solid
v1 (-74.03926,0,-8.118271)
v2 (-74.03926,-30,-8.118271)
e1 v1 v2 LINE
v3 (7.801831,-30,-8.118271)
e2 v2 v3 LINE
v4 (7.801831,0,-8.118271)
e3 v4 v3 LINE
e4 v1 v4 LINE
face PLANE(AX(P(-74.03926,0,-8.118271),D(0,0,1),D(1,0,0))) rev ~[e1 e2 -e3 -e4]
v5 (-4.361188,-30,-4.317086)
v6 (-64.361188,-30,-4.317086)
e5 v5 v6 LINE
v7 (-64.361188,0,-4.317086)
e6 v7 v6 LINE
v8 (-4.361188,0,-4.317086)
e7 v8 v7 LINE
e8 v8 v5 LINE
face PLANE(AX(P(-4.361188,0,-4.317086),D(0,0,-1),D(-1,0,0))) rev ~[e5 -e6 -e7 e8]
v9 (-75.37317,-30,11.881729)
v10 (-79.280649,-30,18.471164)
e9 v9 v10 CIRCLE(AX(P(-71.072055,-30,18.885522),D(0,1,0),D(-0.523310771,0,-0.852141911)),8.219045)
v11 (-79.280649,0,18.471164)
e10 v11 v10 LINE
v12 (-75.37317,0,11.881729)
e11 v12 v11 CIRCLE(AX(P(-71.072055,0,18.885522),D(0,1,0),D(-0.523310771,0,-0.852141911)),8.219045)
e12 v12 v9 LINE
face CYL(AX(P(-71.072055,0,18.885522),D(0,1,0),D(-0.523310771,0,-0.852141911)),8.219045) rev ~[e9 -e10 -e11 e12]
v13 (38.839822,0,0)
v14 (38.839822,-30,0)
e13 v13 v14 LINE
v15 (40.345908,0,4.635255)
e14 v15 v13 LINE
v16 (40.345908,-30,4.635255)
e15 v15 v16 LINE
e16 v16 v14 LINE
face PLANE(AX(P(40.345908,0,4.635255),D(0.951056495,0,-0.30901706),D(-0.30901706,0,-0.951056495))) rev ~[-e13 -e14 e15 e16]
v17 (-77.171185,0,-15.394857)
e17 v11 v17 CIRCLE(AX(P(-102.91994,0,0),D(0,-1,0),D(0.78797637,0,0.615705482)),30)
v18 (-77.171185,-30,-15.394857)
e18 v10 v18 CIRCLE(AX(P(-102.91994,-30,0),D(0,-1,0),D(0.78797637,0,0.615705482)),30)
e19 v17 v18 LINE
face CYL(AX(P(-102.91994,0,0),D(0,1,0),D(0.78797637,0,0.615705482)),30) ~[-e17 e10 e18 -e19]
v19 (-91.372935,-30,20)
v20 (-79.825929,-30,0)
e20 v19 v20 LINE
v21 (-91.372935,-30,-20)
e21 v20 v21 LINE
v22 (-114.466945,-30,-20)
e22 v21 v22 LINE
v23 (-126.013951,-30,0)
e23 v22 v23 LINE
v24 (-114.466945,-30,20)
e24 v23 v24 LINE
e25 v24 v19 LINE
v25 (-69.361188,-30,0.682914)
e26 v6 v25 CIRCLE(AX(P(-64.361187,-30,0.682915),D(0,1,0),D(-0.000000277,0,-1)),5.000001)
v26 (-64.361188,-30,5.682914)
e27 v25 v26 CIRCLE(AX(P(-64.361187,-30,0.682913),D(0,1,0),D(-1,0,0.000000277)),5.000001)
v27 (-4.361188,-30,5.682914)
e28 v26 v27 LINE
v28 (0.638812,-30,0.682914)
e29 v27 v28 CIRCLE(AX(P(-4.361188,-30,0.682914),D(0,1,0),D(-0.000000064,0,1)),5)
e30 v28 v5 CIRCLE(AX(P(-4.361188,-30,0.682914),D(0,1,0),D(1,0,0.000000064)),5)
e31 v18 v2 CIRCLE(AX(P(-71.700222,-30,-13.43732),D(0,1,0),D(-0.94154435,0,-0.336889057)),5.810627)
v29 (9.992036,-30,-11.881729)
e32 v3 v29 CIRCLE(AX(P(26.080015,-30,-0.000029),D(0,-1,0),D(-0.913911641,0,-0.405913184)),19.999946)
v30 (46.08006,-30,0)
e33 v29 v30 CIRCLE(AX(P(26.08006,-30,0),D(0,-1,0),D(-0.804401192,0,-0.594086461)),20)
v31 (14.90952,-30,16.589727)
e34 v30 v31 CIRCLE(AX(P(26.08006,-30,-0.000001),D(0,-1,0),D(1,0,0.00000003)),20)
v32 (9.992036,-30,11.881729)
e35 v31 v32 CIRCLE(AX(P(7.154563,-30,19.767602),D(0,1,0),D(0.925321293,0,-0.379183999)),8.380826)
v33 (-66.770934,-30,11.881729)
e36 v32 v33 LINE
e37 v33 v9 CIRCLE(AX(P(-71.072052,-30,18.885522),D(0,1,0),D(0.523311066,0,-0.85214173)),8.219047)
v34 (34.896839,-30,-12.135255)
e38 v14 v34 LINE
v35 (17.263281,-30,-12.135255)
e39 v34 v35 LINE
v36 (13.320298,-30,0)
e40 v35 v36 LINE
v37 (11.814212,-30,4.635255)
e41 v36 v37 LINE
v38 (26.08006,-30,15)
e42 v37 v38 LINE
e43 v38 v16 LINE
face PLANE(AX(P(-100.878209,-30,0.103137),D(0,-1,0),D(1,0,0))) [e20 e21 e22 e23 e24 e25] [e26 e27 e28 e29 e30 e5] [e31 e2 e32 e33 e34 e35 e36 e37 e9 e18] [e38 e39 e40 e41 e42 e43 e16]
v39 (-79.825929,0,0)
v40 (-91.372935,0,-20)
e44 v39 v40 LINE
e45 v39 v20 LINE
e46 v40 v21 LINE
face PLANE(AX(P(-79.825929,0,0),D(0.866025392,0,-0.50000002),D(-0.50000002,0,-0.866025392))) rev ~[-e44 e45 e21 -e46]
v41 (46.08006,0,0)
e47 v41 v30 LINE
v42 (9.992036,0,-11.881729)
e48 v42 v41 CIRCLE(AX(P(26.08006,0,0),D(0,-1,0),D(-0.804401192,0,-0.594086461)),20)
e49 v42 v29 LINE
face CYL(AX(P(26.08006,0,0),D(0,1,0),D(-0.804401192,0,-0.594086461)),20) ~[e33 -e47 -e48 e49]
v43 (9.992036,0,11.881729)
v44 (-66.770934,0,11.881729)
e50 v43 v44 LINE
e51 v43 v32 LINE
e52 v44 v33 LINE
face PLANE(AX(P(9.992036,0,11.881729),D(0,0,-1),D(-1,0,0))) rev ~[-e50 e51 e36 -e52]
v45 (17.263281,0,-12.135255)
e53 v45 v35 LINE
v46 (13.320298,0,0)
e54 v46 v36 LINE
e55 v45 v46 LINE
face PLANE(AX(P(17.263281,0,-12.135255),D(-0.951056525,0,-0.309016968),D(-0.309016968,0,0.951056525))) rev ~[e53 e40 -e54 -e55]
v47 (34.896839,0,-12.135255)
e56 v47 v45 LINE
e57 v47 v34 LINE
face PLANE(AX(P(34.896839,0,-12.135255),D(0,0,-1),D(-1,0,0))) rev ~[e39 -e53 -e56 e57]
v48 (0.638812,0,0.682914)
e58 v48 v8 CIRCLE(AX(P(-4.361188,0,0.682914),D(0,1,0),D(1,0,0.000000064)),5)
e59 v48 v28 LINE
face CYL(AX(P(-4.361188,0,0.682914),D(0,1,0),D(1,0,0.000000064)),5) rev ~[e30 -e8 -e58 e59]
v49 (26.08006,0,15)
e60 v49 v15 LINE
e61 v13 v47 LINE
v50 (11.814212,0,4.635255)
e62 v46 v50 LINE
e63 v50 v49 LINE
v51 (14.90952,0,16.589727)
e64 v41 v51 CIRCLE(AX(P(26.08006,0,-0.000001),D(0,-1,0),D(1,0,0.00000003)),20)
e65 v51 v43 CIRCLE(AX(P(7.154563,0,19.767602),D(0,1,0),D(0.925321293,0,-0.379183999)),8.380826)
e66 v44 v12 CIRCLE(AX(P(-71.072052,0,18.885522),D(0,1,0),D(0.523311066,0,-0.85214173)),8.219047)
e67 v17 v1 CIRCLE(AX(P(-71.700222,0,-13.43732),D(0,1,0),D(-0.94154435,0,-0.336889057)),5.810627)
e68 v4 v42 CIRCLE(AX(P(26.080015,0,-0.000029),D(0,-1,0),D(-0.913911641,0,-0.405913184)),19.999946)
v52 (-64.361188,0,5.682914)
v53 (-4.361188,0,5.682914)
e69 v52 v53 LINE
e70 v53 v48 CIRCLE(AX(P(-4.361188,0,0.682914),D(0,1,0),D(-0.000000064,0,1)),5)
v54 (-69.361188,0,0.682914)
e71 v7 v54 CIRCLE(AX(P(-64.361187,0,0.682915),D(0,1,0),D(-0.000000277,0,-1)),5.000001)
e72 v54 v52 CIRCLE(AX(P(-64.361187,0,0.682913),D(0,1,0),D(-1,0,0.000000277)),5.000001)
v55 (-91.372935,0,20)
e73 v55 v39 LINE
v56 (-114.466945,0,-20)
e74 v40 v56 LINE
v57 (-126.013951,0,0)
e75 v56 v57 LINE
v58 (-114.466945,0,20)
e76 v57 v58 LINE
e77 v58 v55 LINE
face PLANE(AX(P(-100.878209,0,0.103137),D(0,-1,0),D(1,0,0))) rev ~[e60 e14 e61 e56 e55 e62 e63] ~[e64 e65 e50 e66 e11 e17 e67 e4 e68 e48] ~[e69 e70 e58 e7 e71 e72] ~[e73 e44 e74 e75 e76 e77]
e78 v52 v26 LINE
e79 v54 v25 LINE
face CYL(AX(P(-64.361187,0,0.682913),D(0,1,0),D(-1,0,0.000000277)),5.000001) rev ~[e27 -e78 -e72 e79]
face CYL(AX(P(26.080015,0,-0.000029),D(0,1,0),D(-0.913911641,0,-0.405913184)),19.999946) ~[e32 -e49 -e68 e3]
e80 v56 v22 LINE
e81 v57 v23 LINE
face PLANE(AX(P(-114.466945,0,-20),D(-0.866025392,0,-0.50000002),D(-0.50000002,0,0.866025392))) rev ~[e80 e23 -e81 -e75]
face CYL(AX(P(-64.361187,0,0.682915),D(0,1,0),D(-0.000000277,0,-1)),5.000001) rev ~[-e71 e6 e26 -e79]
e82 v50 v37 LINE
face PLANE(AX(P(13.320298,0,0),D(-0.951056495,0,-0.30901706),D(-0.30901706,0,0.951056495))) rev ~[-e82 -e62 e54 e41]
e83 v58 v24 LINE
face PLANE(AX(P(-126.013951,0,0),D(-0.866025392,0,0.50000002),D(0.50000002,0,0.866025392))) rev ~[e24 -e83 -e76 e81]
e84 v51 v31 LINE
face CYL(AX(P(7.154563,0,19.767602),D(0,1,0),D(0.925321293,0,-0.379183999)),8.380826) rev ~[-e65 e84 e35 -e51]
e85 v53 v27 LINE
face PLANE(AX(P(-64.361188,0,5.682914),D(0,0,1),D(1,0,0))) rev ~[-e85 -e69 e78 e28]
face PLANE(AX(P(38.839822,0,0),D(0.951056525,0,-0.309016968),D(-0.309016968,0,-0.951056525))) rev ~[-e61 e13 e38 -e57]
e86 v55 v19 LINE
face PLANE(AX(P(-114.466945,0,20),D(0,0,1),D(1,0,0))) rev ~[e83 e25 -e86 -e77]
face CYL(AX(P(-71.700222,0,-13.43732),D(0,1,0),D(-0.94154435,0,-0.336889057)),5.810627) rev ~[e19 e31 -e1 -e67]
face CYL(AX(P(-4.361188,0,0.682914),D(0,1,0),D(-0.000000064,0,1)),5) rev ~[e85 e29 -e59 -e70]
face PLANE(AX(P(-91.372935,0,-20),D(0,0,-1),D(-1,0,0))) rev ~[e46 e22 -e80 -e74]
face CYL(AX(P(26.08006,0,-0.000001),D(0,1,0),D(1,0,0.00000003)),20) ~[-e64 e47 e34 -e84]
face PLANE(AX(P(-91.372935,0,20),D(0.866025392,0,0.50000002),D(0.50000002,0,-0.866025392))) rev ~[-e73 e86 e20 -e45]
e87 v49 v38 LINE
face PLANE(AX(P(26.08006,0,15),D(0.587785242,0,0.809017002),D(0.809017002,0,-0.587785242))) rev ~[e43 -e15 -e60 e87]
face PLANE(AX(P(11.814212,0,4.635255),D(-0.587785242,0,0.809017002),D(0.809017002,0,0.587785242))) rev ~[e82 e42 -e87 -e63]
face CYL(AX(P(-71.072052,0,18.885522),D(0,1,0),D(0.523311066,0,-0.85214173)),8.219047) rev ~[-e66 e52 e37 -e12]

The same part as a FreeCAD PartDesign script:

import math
import FreeCAD as App
import Part
import Sketcher
Q = App.Units.Quantity

doc = App.newDocument("Part")
body = doc.addObject("PartDesign::Body", "Body")

sketch1 = body.newObject("Sketcher::SketchObject", "Sketch")
sketch1.AttachmentSupport = (doc.getObject("XZ_Plane"), [""])
sketch1.MapMode = "FlatFace"
sketch1.addGeometry(Part.ArcOfCircle(Part.Circle(App.Vector(-71.1, 18.9, 0), App.Vector(0, 0, 1), 8.2), math.radians(-177), math.radians(-122)), False)
sketch1.addGeometry(Part.ArcOfCircle(Part.Circle(App.Vector(-102.9, 0, 0), App.Vector(0, 0, 1), 30), math.radians(38), math.radians(329)), False)
sketch1.addGeometry(Part.ArcOfCircle(Part.Circle(App.Vector(-71.7, -13.4, 0), App.Vector(0, 0, 1), 5.8), math.radians(114), math.radians(200)), False)
sketch1.addGeometry(Part.LineSegment(App.Vector(-74, -8.1, 0), App.Vector(7.8, -8.1, 0)), False)
sketch1.addGeometry(Part.ArcOfCircle(Part.Circle(App.Vector(26.1, 0, 0), App.Vector(0, 0, 1), 20), math.radians(-156.05), math.radians(-143.55)), False)
sketch1.addGeometry(Part.ArcOfCircle(Part.Circle(App.Vector(26.1, 0, 0), App.Vector(0, 0, 1), 20), math.radians(-144), math.radians(0)), False)
sketch1.addGeometry(Part.ArcOfCircle(Part.Circle(App.Vector(26.1, 0, 0), App.Vector(0, 0, 1), 20), math.radians(0), math.radians(124)), False)
sketch1.addGeometry(Part.ArcOfCircle(Part.Circle(App.Vector(7.2, 19.8, 0), App.Vector(0, 0, 1), 8.4), math.radians(-70), math.radians(-22)), False)
sketch1.addGeometry(Part.LineSegment(App.Vector(10, 11.9, 0), App.Vector(-66.8, 11.9, 0)), False)
sketch1.addGeometry(Part.ArcOfCircle(Part.Circle(App.Vector(-71.1, 18.9, 0), App.Vector(0, 0, 1), 8.2), math.radians(-122), math.radians(-58)), False)
sketch1.addGeometry(Part.LineSegment(App.Vector(13.3, 0, 0), App.Vector(11.8, 4.6, 0)), False)
sketch1.addGeometry(Part.LineSegment(App.Vector(11.8, 4.6, 0), App.Vector(26.1, 15, 0)), False)
sketch1.addGeometry(Part.LineSegment(App.Vector(26.1, 15, 0), App.Vector(40.3, 4.6, 0)), False)
sketch1.addGeometry(Part.LineSegment(App.Vector(40.3, 4.6, 0), App.Vector(38.8, 0, 0)), False)
sketch1.addGeometry(Part.LineSegment(App.Vector(38.8, 0, 0), App.Vector(34.9, -12.1, 0)), False)
sketch1.addGeometry(Part.LineSegment(App.Vector(34.9, -12.1, 0), App.Vector(17.3, -12.1, 0)), False)
sketch1.addGeometry(Part.LineSegment(App.Vector(17.3, -12.1, 0), App.Vector(13.3, 0, 0)), False)
sketch1.addGeometry(Part.LineSegment(App.Vector(-114.5, -20, 0), App.Vector(-126, 0, 0)), False)
sketch1.addGeometry(Part.LineSegment(App.Vector(-126, 0, 0), App.Vector(-114.5, 20, 0)), False)
sketch1.addGeometry(Part.LineSegment(App.Vector(-114.5, 20, 0), App.Vector(-91.4, 20, 0)), False)
sketch1.addGeometry(Part.LineSegment(App.Vector(-91.4, 20, 0), App.Vector(-79.8, 0, 0)), False)
sketch1.addGeometry(Part.LineSegment(App.Vector(-79.8, 0, 0), App.Vector(-91.4, -20, 0)), False)
sketch1.addGeometry(Part.LineSegment(App.Vector(-91.4, -20, 0), App.Vector(-114.5, -20, 0)), False)
sketch1.addGeometry(Part.ArcOfCircle(Part.Circle(App.Vector(-64.4, 0.7, 0), App.Vector(0, 0, 1), 5), math.radians(-180), math.radians(-90)), False)
sketch1.addGeometry(Part.ArcOfCircle(Part.Circle(App.Vector(-64.4, 0.7, 0), App.Vector(0, 0, 1), 5), math.radians(90), math.radians(180)), False)
sketch1.addGeometry(Part.LineSegment(App.Vector(-64.4, 5.7, 0), App.Vector(-4.4, 5.7, 0)), False)
sketch1.addGeometry(Part.ArcOfCircle(Part.Circle(App.Vector(-4.4, 0.7, 0), App.Vector(0, 0, 1), 5), math.radians(0), math.radians(90)), False)
sketch1.addGeometry(Part.ArcOfCircle(Part.Circle(App.Vector(-4.4, 0.7, 0), App.Vector(0, 0, 1), 5), math.radians(-90), math.radians(0)), False)
sketch1.addGeometry(Part.LineSegment(App.Vector(-4.4, -4.3, 0), App.Vector(-64.4, -4.3, 0)), False)
sketch1.addConstraint(Sketcher.Constraint("Coincident", 0, 1, 1, 1))
sketch1.addConstraint(Sketcher.Constraint("Coincident", 1, 2, 2, 2))
sketch1.addConstraint(Sketcher.Constraint("Coincident", 2, 1, 3, 1))
sketch1.addConstraint(Sketcher.Constraint("Coincident", 3, 2, 4, 1))
sketch1.addConstraint(Sketcher.Constraint("Tangent", 4, 2, 5, 1))
sketch1.addConstraint(Sketcher.Constraint("Tangent", 5, 2, 6, 1))
sketch1.addConstraint(Sketcher.Constraint("Coincident", 6, 2, 7, 2))
sketch1.addConstraint(Sketcher.Constraint("Coincident", 7, 1, 8, 1))
sketch1.addConstraint(Sketcher.Constraint("Coincident", 8, 2, 9, 2))
sketch1.addConstraint(Sketcher.Constraint("Tangent", 9, 1, 0, 2))
sketch1.addConstraint(Sketcher.Constraint("Coincident", 10, 2, 11, 1))
sketch1.addConstraint(Sketcher.Constraint("Coincident", 11, 2, 12, 1))
sketch1.addConstraint(Sketcher.Constraint("Coincident", 12, 2, 13, 1))
sketch1.addConstraint(Sketcher.Constraint("Coincident", 13, 2, 14, 1))
sketch1.addConstraint(Sketcher.Constraint("Coincident", 14, 2, 15, 1))
sketch1.addConstraint(Sketcher.Constraint("Coincident", 15, 2, 16, 1))
sketch1.addConstraint(Sketcher.Constraint("Coincident", 16, 2, 10, 1))
sketch1.addConstraint(Sketcher.Constraint("Coincident", 17, 2, 18, 1))
sketch1.addConstraint(Sketcher.Constraint("Coincident", 18, 2, 19, 1))
sketch1.addConstraint(Sketcher.Constraint("Coincident", 19, 2, 20, 1))
sketch1.addConstraint(Sketcher.Constraint("Coincident", 20, 2, 21, 1))
sketch1.addConstraint(Sketcher.Constraint("Coincident", 21, 2, 22, 1))
sketch1.addConstraint(Sketcher.Constraint("Coincident", 22, 2, 17, 1))
sketch1.addConstraint(Sketcher.Constraint("Tangent", 23, 1, 24, 2))
sketch1.addConstraint(Sketcher.Constraint("Tangent", 24, 1, 25, 1))
sketch1.addConstraint(Sketcher.Constraint("Tangent", 25, 2, 26, 2))
sketch1.addConstraint(Sketcher.Constraint("Tangent", 26, 1, 27, 2))
sketch1.addConstraint(Sketcher.Constraint("Tangent", 27, 1, 28, 1))
sketch1.addConstraint(Sketcher.Constraint("Tangent", 28, 2, 23, 2))
sketch1.addConstraint(Sketcher.Constraint("Horizontal", 3))
sketch1.addConstraint(Sketcher.Constraint("Horizontal", 8))
sketch1.addConstraint(Sketcher.Constraint("Horizontal", 15))
sketch1.addConstraint(Sketcher.Constraint("Horizontal", 19))
sketch1.addConstraint(Sketcher.Constraint("Horizontal", 22))
sketch1.addConstraint(Sketcher.Constraint("Horizontal", 25))
sketch1.addConstraint(Sketcher.Constraint("Horizontal", 28))
sketch1.addConstraint(Sketcher.Constraint("Equal", 5, 6))
sketch1.addConstraint(Sketcher.Constraint("Equal", 0, 9))
sketch1.addConstraint(Sketcher.Constraint("Equal", 23, 24))
sketch1.addConstraint(Sketcher.Constraint("Equal", 24, 26))
sketch1.addConstraint(Sketcher.Constraint("Symmetric", 4, 2, 7, 1, -1))
sketch1.addConstraint(Sketcher.Constraint("Symmetric", 19, 2, 21, 2, -1))
sketch1.addConstraint(Sketcher.Constraint("PointOnObject", 1, 3, -1))
sketch1.addConstraint(Sketcher.Constraint("PointOnObject", 5, 3, -1))
sketch1.addConstraint(Sketcher.Constraint("PointOnObject", 5, 2, -1))
sketch1.addConstraint(Sketcher.Constraint("PointOnObject", 13, 2, -1))
sketch1.addConstraint(Sketcher.Constraint("PointOnObject", 16, 2, -1))
sketch1.addConstraint(Sketcher.Constraint("PointOnObject", 17, 2, -1))
sketch1.addConstraint(Sketcher.Constraint("PointOnObject", 20, 2, -1))
sketch1.addConstraint(Sketcher.Constraint("Parallel", 13, 14))
sketch1.addConstraint(Sketcher.Constraint("Parallel", 10, 16))
sketch1.addConstraint(Sketcher.Constraint("Parallel", 17, 20))
sketch1.addConstraint(Sketcher.Constraint("Parallel", 18, 21))
sketch1.addConstraint(Sketcher.Constraint("Horizontal", 8, 2, 9, 1))
sketch1.addConstraint(Sketcher.Constraint("Horizontal", 10, 2, 12, 2))
sketch1.addConstraint(Sketcher.Constraint("Horizontal", 27, 3, 23, 1))
sketch1.addConstraint(Sketcher.Constraint("Horizontal", 23, 1, 26, 1))
sketch1.addConstraint(Sketcher.Constraint("Vertical", 6, 3, 11, 2))
sketch1.addConstraint(Sketcher.Constraint("Equal", 11, 12))
sketch1.addConstraint(Sketcher.Constraint("Equal", 10, 13))
sketch1.addConstraint(Sketcher.Constraint("Radius", 1, Q("30 mm")))
sketch1.addConstraint(Sketcher.Constraint("Radius", 5, Q("20 mm")))
sketch1.addConstraint(Sketcher.Constraint("Radius", 23, Q("5.000001 mm")))
sketch1.addConstraint(Sketcher.Constraint("DistanceX", 25, 1, 25, 2, Q("60 mm")))
sketch1.addConstraint(Sketcher.Constraint("Angle", 10, Q("108.000004 deg")))
sketch1.addConstraint(Sketcher.Constraint("Angle", 11, Q("35.999999 deg")))
sketch1.addConstraint(Sketcher.Constraint("Angle", 17, Q("120.000001 deg")))
sketch1.addConstraint(Sketcher.Constraint("DistanceY", -1, 1, 11, 2, Q("15 mm")))
sketch1.addConstraint(Sketcher.Constraint("DistanceY", -1, 1, 18, 2, Q("20 mm")))
sketch1.addConstraint(Sketcher.Constraint("DistanceX", 1, 3, 5, 3, Q("129 mm")))
sketch1.addConstraint(Sketcher.Constraint("DistanceX", 1, 2, 24, 3, Q("12.809998 mm")))
sketch1.addConstraint(Sketcher.Constraint("Radius", 0, Q("8.219045 mm")))
sketch1.addConstraint(Sketcher.Constraint("Radius", 2, Q("5.810627 mm")))
sketch1.addConstraint(Sketcher.Constraint("Radius", 4, Q("19.999946 mm")))
sketch1.addConstraint(Sketcher.Constraint("Radius", 7, Q("8.380826 mm")))
sketch1.addConstraint(Sketcher.Constraint("DistanceX", 3, 1, 3, 2, Q("81.841091 mm")))
sketch1.addConstraint(Sketcher.Constraint("DistanceX", 8, 2, 8, 1, Q("76.76297 mm")))
sketch1.addConstraint(Sketcher.Constraint("DistanceX", 15, 2, 15, 1, Q("17.633558 mm")))
sketch1.addConstraint(Sketcher.Constraint("DistanceX", 19, 1, 19, 2, Q("23.09401 mm")))
sketch1.addConstraint(Sketcher.Constraint("DistanceY", 5, 3, 7, 3, Q("19.767602 mm")))
sketch1.addConstraint(Sketcher.Constraint("DistanceY", 4, 2, 4, 3, Q("11.8817 mm")))
sketch1.addConstraint(Sketcher.Constraint("DistanceX", 25, 2, 10, 2, Q("16.1754 mm")))
sketch1.addConstraint(Sketcher.Constraint("DistanceX", 1, 3, -1, 1, Q("102.91994 mm")))
sketch1.addConstraint(Sketcher.Constraint("DistanceY", 2, 3, -1, 1, Q("13.43732 mm")))
sketch1.addConstraint(Sketcher.Constraint("DistanceX", 9, 3, -1, 1, Q("71.072052 mm")))
sketch1.addConstraint(Sketcher.Constraint("DistanceX", 2, 1, -1, 1, Q("74.03926 mm")))
sketch1.addConstraint(Sketcher.Constraint("DistanceX", 17, 2, -1, 1, Q("126.013951 mm")))
sketch1.addConstraint(Sketcher.Constraint("DistanceY", 24, 3, 9, 3, Q("18.202609 mm")))
pad1 = body.newObject("PartDesign::Pad", "Pad")
pad1.Profile = sketch1
pad1.Length = 30

doc.recompute()
